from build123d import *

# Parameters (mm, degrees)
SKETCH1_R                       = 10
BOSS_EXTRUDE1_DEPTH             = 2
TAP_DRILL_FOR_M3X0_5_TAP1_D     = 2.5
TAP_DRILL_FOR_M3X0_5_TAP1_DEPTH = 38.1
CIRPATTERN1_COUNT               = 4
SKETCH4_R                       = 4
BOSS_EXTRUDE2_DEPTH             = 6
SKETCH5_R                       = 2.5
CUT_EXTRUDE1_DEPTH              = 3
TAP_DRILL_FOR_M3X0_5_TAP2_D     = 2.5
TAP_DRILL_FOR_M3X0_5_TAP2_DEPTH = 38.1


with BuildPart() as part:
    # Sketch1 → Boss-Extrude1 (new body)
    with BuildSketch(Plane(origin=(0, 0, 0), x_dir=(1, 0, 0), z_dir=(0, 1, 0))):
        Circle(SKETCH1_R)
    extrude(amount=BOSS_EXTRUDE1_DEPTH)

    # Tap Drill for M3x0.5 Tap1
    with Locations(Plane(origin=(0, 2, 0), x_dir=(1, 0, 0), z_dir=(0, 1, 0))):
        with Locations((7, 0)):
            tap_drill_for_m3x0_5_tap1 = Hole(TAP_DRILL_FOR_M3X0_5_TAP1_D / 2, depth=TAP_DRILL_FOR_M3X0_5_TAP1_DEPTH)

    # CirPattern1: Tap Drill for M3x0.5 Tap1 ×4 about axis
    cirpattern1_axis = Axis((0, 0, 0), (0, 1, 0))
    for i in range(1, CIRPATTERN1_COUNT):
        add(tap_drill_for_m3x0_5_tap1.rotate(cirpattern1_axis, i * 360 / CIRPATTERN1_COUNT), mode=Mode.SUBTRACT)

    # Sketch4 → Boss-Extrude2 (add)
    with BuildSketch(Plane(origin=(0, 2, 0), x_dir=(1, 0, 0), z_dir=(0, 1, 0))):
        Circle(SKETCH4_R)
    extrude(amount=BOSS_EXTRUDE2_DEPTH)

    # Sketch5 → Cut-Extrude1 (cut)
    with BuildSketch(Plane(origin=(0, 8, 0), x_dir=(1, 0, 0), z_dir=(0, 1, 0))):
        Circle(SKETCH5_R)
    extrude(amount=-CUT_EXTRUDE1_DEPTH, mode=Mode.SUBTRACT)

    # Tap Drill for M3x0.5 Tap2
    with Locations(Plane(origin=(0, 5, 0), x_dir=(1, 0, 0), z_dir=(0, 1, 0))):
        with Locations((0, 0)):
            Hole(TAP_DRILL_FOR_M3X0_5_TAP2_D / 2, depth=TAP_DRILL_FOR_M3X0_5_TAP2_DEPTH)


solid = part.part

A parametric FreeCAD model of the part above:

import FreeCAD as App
import Part
import Sketcher

V = App.Vector
Q = App.Units.Quantity

doc = App.newDocument("Part")
body = doc.addObject("PartDesign::Body", "Body")

sketch1 = doc.addObject("Sketcher::SketchObject", "Sketch")
body.addObject(sketch1)
sketch1.AttachmentSupport = (doc.XZ_Plane, [""])
sketch1.MapMode = "FlatFace"
sketch1.addGeometry(Part.Circle(V(0, 0, 0), V(0, 0, 1), 10), False)
sketch1.addConstraint([
    Sketcher.Constraint("Coincident", 0, 3, -1, 1),
    Sketcher.Constraint("Diameter", 0, Q("20 mm")),
])
pad1 = doc.addObject("PartDesign::Pad", "Pad")
body.addObject(pad1)
pad1.Profile = sketch1
pad1.Length = 2
pad1.Reversed = True

sketch2 = doc.addObject("Sketcher::SketchObject", "Sketch001")
body.addObject(sketch2)
sketch2.AttachmentSupport = (doc.XZ_Plane, [""])
sketch2.MapMode = "FlatFace"
sketch2.AttachmentOffset = App.Placement(V(0, 0, -2), App.Rotation())
sketch2.addGeometry(Part.Circle(V(7, 0, 0), V(0, 0, 1), 1.2), False)
sketch2.addConstraint([
    Sketcher.Constraint("PointOnObject", 0, 3, -1),
    Sketcher.Constraint("Diameter", 0, Q("2.5 mm")),
    Sketcher.Constraint("DistanceX", -1, 1, 0, 3, Q("7 mm")),
])
doc.recompute()
hole = doc.addObject("PartDesign::Hole", "Hole")
body.addObject(hole)
hole.Profile = sketch2
hole.ThreadType = "None"
hole.Diameter = 2.5
hole.DepthType = "Dimension"
hole.Depth = 38.1
hole.DrillPoint = "Flat"
hole.Reversed = True
doc.recompute()

polarpattern = doc.addObject("PartDesign::PolarPattern", "PolarPattern")
body.addObject(polarpattern)
polarpattern.Originals = [hole]
polarpattern.Axis = (doc.Y_Axis, [""])
polarpattern.Angle = 360
polarpattern.Occurrences = 4
body.Tip = polarpattern

sketch3 = doc.addObject("Sketcher::SketchObject", "Sketch002")
body.addObject(sketch3)
sketch3.AttachmentSupport = (doc.XZ_Plane, [""])
sketch3.MapMode = "FlatFace"
sketch3.AttachmentOffset = App.Placement(V(0, 0, -2), App.Rotation())
sketch3.addGeometry(Part.Circle(V(0, 0, 0), V(0, 0, 1), 4), False)
sketch3.addConstraint([
    Sketcher.Constraint("Coincident", 0, 3, -1, 1),
    Sketcher.Constraint("Diameter", 0, Q("8 mm")),
])
pad2 = doc.addObject("PartDesign::Pad", "Pad001")
body.addObject(pad2)
pad2.Profile = sketch3
pad2.Length = 6
pad2.Reversed = True

sketch4 = doc.addObject("Sketcher::SketchObject", "Sketch003")
body.addObject(sketch4)
sketch4.AttachmentSupport = (doc.XZ_Plane, [""])
sketch4.MapMode = "FlatFace"
sketch4.AttachmentOffset = App.Placement(V(0, 0, -8), App.Rotation())
sketch4.addGeometry(Part.Circle(V(0, 0, 0), V(0, 0, 1), 2.5), False)
sketch4.addConstraint([
    Sketcher.Constraint("Coincident", 0, 3, -1, 1),
    Sketcher.Constraint("Diameter", 0, Q("5 mm")),
])
pocket1 = doc.addObject("PartDesign::Pocket", "Pocket")
body.addObject(pocket1)
pocket1.Profile = sketch4
pocket1.Length = 3
pocket1.Reversed = True

sketch5 = doc.addObject("Sketcher::SketchObject", "Sketch004")
body.addObject(sketch5)
sketch5.AttachmentSupport = (doc.XZ_Plane, [""])
sketch5.MapMode = "FlatFace"
sketch5.AttachmentOffset = App.Placement(V(0, 0, -5), App.Rotation())
sketch5.addGeometry(Part.Circle(V(0, 0, 0), V(0, 0, 1), 1.2), False)
sketch5.addConstraint([
    Sketcher.Constraint("Coincident", 0, 3, -1, 1),
    Sketcher.Constraint("Diameter", 0, Q("2.5 mm")),
])
doc.recompute()
hole2 = doc.addObject("PartDesign::Hole", "Hole001")
body.addObject(hole2)
hole2.Profile = sketch5
hole2.ThreadType = "None"
hole2.Diameter = 2.5
hole2.DepthType = "Dimension"
hole2.Depth = 38.1
hole2.DrillPoint = "Flat"
hole2.Reversed = True

doc.recompute()
